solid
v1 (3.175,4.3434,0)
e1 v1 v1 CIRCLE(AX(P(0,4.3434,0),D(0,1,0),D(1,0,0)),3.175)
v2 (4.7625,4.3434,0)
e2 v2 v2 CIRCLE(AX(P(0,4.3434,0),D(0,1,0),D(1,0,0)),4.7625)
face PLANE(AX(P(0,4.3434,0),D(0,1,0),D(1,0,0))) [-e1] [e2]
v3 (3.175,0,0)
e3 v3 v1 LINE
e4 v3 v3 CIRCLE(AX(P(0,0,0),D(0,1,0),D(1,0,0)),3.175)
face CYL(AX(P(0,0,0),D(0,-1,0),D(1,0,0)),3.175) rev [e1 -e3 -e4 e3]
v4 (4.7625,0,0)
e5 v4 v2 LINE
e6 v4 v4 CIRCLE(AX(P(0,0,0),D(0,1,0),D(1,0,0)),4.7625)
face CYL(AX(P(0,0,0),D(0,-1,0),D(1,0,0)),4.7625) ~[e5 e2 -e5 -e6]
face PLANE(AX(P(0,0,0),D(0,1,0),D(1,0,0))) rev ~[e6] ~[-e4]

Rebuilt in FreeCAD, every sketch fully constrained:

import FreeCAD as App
import Part
import Sketcher
from FreeCAD import Vector
Q = App.Units.Quantity

doc = App.newDocument("Part")
body = doc.addObject("PartDesign::Body", "Body")

# Sketch on XZ plane
sketch1 = doc.addObject("Sketcher::SketchObject", "Sketch")
body.addObject(sketch1)
sketch1.AttachmentSupport = (doc.XZ_Plane, [""])
sketch1.MapMode = "FlatFace"
sketch1.addGeometry(Part.Circle(Vector(0, 0, 0), Vector(0, 0, 1), 4.7625), False)
sketch1.addGeometry(Part.Circle(Vector(0, 0, 0), Vector(0, 0, 1), 3.175), False)
sketch1.addConstraint(Sketcher.Constraint("Coincident", 0, 3, -1, 1))
sketch1.addConstraint(Sketcher.Constraint("Coincident", 1, 3, -1, 1))
sketch1.addConstraint(Sketcher.Constraint("Diameter", 1, Q("0.25 in")))
sketch1.addConstraint(Sketcher.Constraint("Diameter", 0, Q("0.375 in")))
pad1 = doc.addObject("PartDesign::Pad", "Pad")
body.addObject(pad1)
pad1.Profile = sketch1
pad1.Length = Q("0.171 in")
pad1.Reversed = True

doc.recompute()
